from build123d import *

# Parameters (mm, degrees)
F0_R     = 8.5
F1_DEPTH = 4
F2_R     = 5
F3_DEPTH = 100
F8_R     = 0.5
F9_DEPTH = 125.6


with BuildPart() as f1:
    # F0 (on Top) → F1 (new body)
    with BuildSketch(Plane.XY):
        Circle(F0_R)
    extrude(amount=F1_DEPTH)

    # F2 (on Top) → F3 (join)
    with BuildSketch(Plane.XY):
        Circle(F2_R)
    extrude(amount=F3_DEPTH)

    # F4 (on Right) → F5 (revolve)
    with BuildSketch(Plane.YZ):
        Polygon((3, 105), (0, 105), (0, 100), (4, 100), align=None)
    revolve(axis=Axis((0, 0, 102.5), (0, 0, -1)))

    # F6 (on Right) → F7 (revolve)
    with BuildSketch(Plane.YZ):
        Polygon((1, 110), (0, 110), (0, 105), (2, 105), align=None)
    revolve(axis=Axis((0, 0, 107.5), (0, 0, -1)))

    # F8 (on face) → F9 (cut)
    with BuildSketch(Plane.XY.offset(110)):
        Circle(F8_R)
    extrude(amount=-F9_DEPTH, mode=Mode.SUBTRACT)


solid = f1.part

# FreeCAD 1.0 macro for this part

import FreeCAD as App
import Part
import Sketcher

V = App.Vector
Q = App.Units.Quantity


def add_polygon(sketch, points):
    """Adds a closed chain of lines whose ends are joined by coincident constraints."""
    first, n = sketch.GeometryCount, len(points)
    for a, b in zip(points, points[1:] + points[:1]):
        sketch.addGeometry(Part.LineSegment(App.Vector(*a, 0), App.Vector(*b, 0)), False)
    for i in range(n):
        sketch.addConstraint(Sketcher.Constraint("Coincident", first + i, 2, first + (i + 1) % n, 1))

doc = App.newDocument("Part")
body = doc.addObject("PartDesign::Body", "Body")

# Sketch on XY plane
sketch1 = body.newObject("Sketcher::SketchObject", "Sketch")
sketch1.AttachmentSupport = (doc.getObject("XY_Plane"), [""])
sketch1.MapMode = "FlatFace"
sketch1.addGeometry(Part.Circle(V(0, 0, 0), V(0, 0, 1), 8), False)
sketch1.addConstraint([
    Sketcher.Constraint("Coincident", 0, 3, -1, 1),
    Sketcher.Constraint("Diameter", 0, Q("17 mm")),
])
pad1 = body.newObject("PartDesign::Pad", "Pad")
pad1.Profile = sketch1
pad1.Length = 4

# Sketch on XY plane
sketch2 = body.newObject("Sketcher::SketchObject", "Sketch001")
sketch2.AttachmentSupport = (doc.getObject("XY_Plane"), [""])
sketch2.MapMode = "FlatFace"
sketch2.addGeometry(Part.Circle(V(0, 0, 0), V(0, 0, 1), 5), False)
sketch2.addConstraint([
    Sketcher.Constraint("Coincident", 0, 3, -1, 1),
    Sketcher.Constraint("Diameter", 0, Q("10 mm")),
])
pad2 = body.newObject("PartDesign::Pad", "Pad001")
pad2.Profile = sketch2
pad2.Length = 100

# Sketch on YZ plane
sketch3 = body.newObject("Sketcher::SketchObject", "Sketch002")
sketch3.AttachmentSupport = (doc.getObject("YZ_Plane"), [""])
sketch3.MapMode = "FlatFace"
add_polygon(sketch3, [(3, 105), (0, 105), (0, 100), (4, 100)])  # lines 0-3
sketch3.addConstraint([
    Sketcher.Constraint("Horizontal", 0),
    Sketcher.Constraint("Vertical", 1),
    Sketcher.Constraint("Horizontal", 2),
    Sketcher.Constraint("PointOnObject", 0, 2, -2),
    Sketcher.Constraint("DistanceX", 0, 2, 0, 1, Q("3 mm")),
    Sketcher.Constraint("DistanceX", 2, 1, 2, 2, Q("4 mm")),
    Sketcher.Constraint("DistanceY", 1, 2, 1, 1, Q("5 mm")),
    Sketcher.Constraint("DistanceY", -1, 1, 0, 2, Q("105 mm")),
])
revolution = body.newObject("PartDesign::Revolution", "Revolution")
revolution.Profile = sketch3
revolution.ReferenceAxis = (sketch3, ["V_Axis"])
revolution.Angle = 360

# Sketch on YZ plane
sketch4 = body.newObject("Sketcher::SketchObject", "Sketch003")
sketch4.AttachmentSupport = (doc.getObject("YZ_Plane"), [""])
sketch4.MapMode = "FlatFace"
add_polygon(sketch4, [(1, 110), (0, 110), (0, 105), (2, 105)])  # lines 0-3
sketch4.addConstraint([
    Sketcher.Constraint("Horizontal", 0),
    Sketcher.Constraint("Vertical", 1),
    Sketcher.Constraint("Horizontal", 2),
    Sketcher.Constraint("PointOnObject", 0, 2, -2),
    Sketcher.Constraint("DistanceX", 0, 2, 0, 1, Q("1 mm")),
    Sketcher.Constraint("DistanceX", 2, 1, 2, 2, Q("2 mm")),
    Sketcher.Constraint("DistanceY", 1, 2, 1, 1, Q("5 mm")),
    Sketcher.Constraint("DistanceY", -1, 1, 0, 2, Q("110 mm")),
])
revolution2 = body.newObject("PartDesign::Revolution", "Revolution001")
revolution2.Profile = sketch4
revolution2.ReferenceAxis = (sketch4, ["V_Axis"])
revolution2.Angle = 360

# Sketch on XY plane
sketch5 = body.newObject("Sketcher::SketchObject", "Sketch004")
sketch5.AttachmentSupport = (doc.getObject("XY_Plane"), [""])
sketch5.MapMode = "FlatFace"
sketch5.AttachmentOffset = App.Placement(V(0, 0, 110), App.Rotation())
sketch5.addGeometry(Part.Circle(V(0, 0, 0), V(0, 0, 1), 0.5), False)
sketch5.addConstraint([
    Sketcher.Constraint("Coincident", 0, 3, -1, 1),
    Sketcher.Constraint("Diameter", 0, Q("1 mm")),
])
pocket1 = body.newObject("PartDesign::Pocket", "Pocket")
pocket1.Profile = sketch5
pocket1.Length = 125.6

doc.recompute()
